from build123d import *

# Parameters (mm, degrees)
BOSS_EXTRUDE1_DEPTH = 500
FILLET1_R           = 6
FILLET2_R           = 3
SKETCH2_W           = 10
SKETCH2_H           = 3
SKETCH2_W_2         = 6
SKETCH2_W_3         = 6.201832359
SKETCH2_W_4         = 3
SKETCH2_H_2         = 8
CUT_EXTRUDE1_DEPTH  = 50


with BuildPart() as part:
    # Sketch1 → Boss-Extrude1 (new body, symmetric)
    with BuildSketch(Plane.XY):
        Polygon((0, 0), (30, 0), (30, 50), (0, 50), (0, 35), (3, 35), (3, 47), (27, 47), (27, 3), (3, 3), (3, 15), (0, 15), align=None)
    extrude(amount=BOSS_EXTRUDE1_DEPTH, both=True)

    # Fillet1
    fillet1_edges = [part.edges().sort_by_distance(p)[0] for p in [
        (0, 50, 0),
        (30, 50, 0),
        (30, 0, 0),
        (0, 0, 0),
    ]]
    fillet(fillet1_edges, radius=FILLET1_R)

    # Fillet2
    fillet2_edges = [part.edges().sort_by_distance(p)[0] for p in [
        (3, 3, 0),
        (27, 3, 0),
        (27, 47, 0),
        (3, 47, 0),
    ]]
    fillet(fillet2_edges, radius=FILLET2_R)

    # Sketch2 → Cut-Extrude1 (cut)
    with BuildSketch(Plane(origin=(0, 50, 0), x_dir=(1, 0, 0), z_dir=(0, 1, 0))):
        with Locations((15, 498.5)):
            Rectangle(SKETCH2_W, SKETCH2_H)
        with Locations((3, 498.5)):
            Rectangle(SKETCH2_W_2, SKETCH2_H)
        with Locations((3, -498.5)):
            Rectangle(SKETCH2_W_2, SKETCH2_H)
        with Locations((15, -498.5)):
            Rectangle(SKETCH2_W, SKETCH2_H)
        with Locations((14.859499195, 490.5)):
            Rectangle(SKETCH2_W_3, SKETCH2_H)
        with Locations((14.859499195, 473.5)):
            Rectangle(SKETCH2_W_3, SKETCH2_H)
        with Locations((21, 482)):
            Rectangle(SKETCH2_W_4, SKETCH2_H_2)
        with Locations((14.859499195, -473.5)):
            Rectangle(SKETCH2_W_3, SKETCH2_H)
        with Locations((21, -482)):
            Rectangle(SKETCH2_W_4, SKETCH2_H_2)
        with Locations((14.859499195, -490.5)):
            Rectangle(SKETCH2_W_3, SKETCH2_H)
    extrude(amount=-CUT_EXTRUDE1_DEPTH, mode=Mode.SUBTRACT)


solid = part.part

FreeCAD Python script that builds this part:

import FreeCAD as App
import Part
import Sketcher
Q = App.Units.Quantity


def edges_at(feature, points):
    """Names of the edges that pass closest to the given points."""
    edges = feature.Shape.Edges
    near = lambda p: min(range(len(edges)), key=lambda i: edges[i].distToShape(Part.Vertex(*p))[0])
    return sorted({f"Edge{near(p) + 1}" for p in points})

doc = App.newDocument("Part")
body = doc.addObject("PartDesign::Body", "Body")

# Sketch on XY plane
sketch1 = body.newObject("Sketcher::SketchObject", "Sketch")
sketch1.AttachmentSupport = (doc.getObject("XY_Plane"), [""])
sketch1.MapMode = "FlatFace"
sketch1.addGeometry([
    Part.LineSegment(App.Vector(0, 0, 0), App.Vector(30, 0, 0)),  # 0
    Part.LineSegment(App.Vector(30, 0, 0), App.Vector(30, 50, 0)),  # 1
    Part.LineSegment(App.Vector(30, 50, 0), App.Vector(0, 50, 0)),  # 2
    Part.LineSegment(App.Vector(0, 50, 0), App.Vector(0, 35, 0)),  # 3
    Part.LineSegment(App.Vector(0, 35, 0), App.Vector(3, 35, 0)),  # 4
    Part.LineSegment(App.Vector(3, 35, 0), App.Vector(3, 47, 0)),  # 5
    Part.LineSegment(App.Vector(3, 47, 0), App.Vector(27, 47, 0)),  # 6
    Part.LineSegment(App.Vector(27, 47, 0), App.Vector(27, 3, 0)),  # 7
    Part.LineSegment(App.Vector(27, 3, 0), App.Vector(3, 3, 0)),  # 8
    Part.LineSegment(App.Vector(3, 3, 0), App.Vector(3, 15, 0)),  # 9
    Part.LineSegment(App.Vector(3, 15, 0), App.Vector(0, 15, 0)),  # 10
    Part.LineSegment(App.Vector(0, 15, 0), App.Vector(0, 0, 0)),  # 11
], False)
sketch1.addConstraint([
    Sketcher.Constraint("Coincident", 0, 2, 1, 1),
    Sketcher.Constraint("Coincident", 1, 2, 2, 1),
    Sketcher.Constraint("Coincident", 2, 2, 3, 1),
    Sketcher.Constraint("Coincident", 3, 2, 4, 1),
    Sketcher.Constraint("Coincident", 4, 2, 5, 1),
    Sketcher.Constraint("Coincident", 5, 2, 6, 1),
    Sketcher.Constraint("Coincident", 6, 2, 7, 1),
    Sketcher.Constraint("Coincident", 7, 2, 8, 1),
    Sketcher.Constraint("Coincident", 8, 2, 9, 1),
    Sketcher.Constraint("Coincident", 9, 2, 10, 1),
    Sketcher.Constraint("Coincident", 10, 2, 11, 1),
    Sketcher.Constraint("Coincident", 11, 2, 0, 1),
    Sketcher.Constraint("Horizontal", 0),
    Sketcher.Constraint("Vertical", 1),
    Sketcher.Constraint("Horizontal", 2),
    Sketcher.Constraint("Vertical", 3),
    Sketcher.Constraint("Horizontal", 4),
    Sketcher.Constraint("Vertical", 5),
    Sketcher.Constraint("Horizontal", 6),
    Sketcher.Constraint("Vertical", 7),
    Sketcher.Constraint("Horizontal", 8),
    Sketcher.Constraint("Vertical", 9),
    Sketcher.Constraint("Horizontal", 10),
    Sketcher.Constraint("Vertical", 11),
    Sketcher.Constraint("Coincident", 11, 2, -1, 1),
    Sketcher.Constraint("PointOnObject", 2, 2, -2),
    Sketcher.Constraint("Vertical", 5, 2, 8, 2),
    Sketcher.Constraint("Equal", 5, 9),
    Sketcher.Constraint("Equal", 3, 11),
    Sketcher.Constraint("DistanceX", 0, 1, 0, 2, Q("30 mm")),
    Sketcher.Constraint("DistanceX", 4, 1, 4, 2, Q("3 mm")),
    Sketcher.Constraint("DistanceX", 6, 1, 6, 2, Q("24 mm")),
    Sketcher.Constraint("DistanceY", 1, 1, 1, 2, Q("50 mm")),
    Sketcher.Constraint("DistanceY", 3, 2, 3, 1, Q("15 mm")),
    Sketcher.Constraint("DistanceY", 5, 1, 5, 2, Q("12 mm")),
])
pad1 = body.newObject("PartDesign::Pad", "Pad")
pad1.Profile = sketch1
pad1.Length = 1000
pad1.Midplane = True
doc.recompute()

fillet = body.newObject("PartDesign::Fillet", "Fillet")
fillet.Base = (pad1, edges_at(pad1, [
    (0, 50, 0),
    (30, 50, 0),
    (30, 0, 0),
    (0, 0, 0),
]))
fillet.Radius = 6
doc.recompute()

fillet2 = body.newObject("PartDesign::Fillet", "Fillet001")
fillet2.Base = (fillet, edges_at(fillet, [
    (3, 3, 0),
    (27, 3, 0),
    (27, 47, 0),
    (3, 47, 0),
]))
fillet2.Radius = 3

# Sketch on XZ plane
sketch2 = body.newObject("Sketcher::SketchObject", "Sketch001")
sketch2.AttachmentSupport = (doc.getObject("XZ_Plane"), [""])
sketch2.MapMode = "FlatFace"
sketch2.AttachmentOffset = App.Placement(App.Vector(0, 0, -50), App.Rotation())
sketch2.addGeometry([
    Part.LineSegment(App.Vector(10, -500, 0), App.Vector(10, -497, 0)),  # 0
    Part.LineSegment(App.Vector(10, -497, 0), App.Vector(20, -497, 0)),  # 1
    Part.LineSegment(App.Vector(20, -497, 0), App.Vector(20, -500, 0)),  # 2
    Part.LineSegment(App.Vector(20, -500, 0), App.Vector(10, -500, 0)),  # 3
    Part.LineSegment(App.Vector(0, -500, 0), App.Vector(0, -497, 0)),  # 4
    Part.LineSegment(App.Vector(0, -497, 0), App.Vector(6, -497, 0)),  # 5
    Part.LineSegment(App.Vector(6, -497, 0), App.Vector(6, -500, 0)),  # 6
    Part.LineSegment(App.Vector(6, -500, 0), App.Vector(0, -500, 0)),  # 7
    Part.LineSegment(App.Vector(0, 497, 0), App.Vector(0, 500, 0)),  # 8
    Part.LineSegment(App.Vector(0, 500, 0), App.Vector(6, 500, 0)),  # 9
    Part.LineSegment(App.Vector(6, 500, 0), App.Vector(6, 497, 0)),  # 10
    Part.LineSegment(App.Vector(6, 497, 0), App.Vector(0, 497, 0)),  # 11
    Part.LineSegment(App.Vector(10, 497, 0), App.Vector(10, 500, 0)),  # 12
    Part.LineSegment(App.Vector(10, 500, 0), App.Vector(20, 500, 0)),  # 13
    Part.LineSegment(App.Vector(20, 500, 0), App.Vector(20, 497, 0)),  # 14
    Part.LineSegment(App.Vector(20, 497, 0), App.Vector(10, 497, 0)),  # 15
    Part.LineSegment(App.Vector(11.8, -492, 0), App.Vector(11.8, -489, 0)),  # 16
    Part.LineSegment(App.Vector(11.8, -489, 0), App.Vector(18, -489, 0)),  # 17
    Part.LineSegment(App.Vector(18, -489, 0), App.Vector(18, -492, 0)),  # 18
    Part.LineSegment(App.Vector(18, -492, 0), App.Vector(11.8, -492, 0)),  # 19
    Part.LineSegment(App.Vector(11.8, -475, 0), App.Vector(11.8, -472, 0)),  # 20
    Part.LineSegment(App.Vector(11.8, -472, 0), App.Vector(18, -472, 0)),  # 21
    Part.LineSegment(App.Vector(18, -472, 0), App.Vector(18, -475, 0)),  # 22
    Part.LineSegment(App.Vector(18, -475, 0), App.Vector(11.8, -475, 0)),  # 23
    Part.LineSegment(App.Vector(19.5, -486, 0), App.Vector(19.5, -478, 0)),  # 24
    Part.LineSegment(App.Vector(19.5, -478, 0), App.Vector(22.5, -478, 0)),  # 25
    Part.LineSegment(App.Vector(22.5, -478, 0), App.Vector(22.5, -486, 0)),  # 26
    Part.LineSegment(App.Vector(22.5, -486, 0), App.Vector(19.5, -486, 0)),  # 27
    Part.LineSegment(App.Vector(11.8, 472, 0), App.Vector(11.8, 475, 0)),  # 28
    Part.LineSegment(App.Vector(11.8, 475, 0), App.Vector(18, 475, 0)),  # 29
    Part.LineSegment(App.Vector(18, 475, 0), App.Vector(18, 472, 0)),  # 30
    Part.LineSegment(App.Vector(18, 472, 0), App.Vector(11.8, 472, 0)),  # 31
    Part.LineSegment(App.Vector(19.5, 478, 0), App.Vector(19.5, 486, 0)),  # 32
    Part.LineSegment(App.Vector(19.5, 486, 0), App.Vector(22.5, 486, 0)),  # 33
    Part.LineSegment(App.Vector(22.5, 486, 0), App.Vector(22.5, 478, 0)),  # 34
    Part.LineSegment(App.Vector(22.5, 478, 0), App.Vector(19.5, 478, 0)),  # 35
    Part.LineSegment(App.Vector(11.8, 489, 0), App.Vector(11.8, 492, 0)),  # 36
    Part.LineSegment(App.Vector(11.8, 492, 0), App.Vector(18, 492, 0)),  # 37
    Part.LineSegment(App.Vector(18, 492, 0), App.Vector(18, 489, 0)),  # 38
    Part.LineSegment(App.Vector(18, 489, 0), App.Vector(11.8, 489, 0)),  # 39
], False)
sketch2.addConstraint([
    Sketcher.Constraint("Coincident", 0, 2, 1, 1),
    Sketcher.Constraint("Coincident", 1, 2, 2, 1),
    Sketcher.Constraint("Coincident", 2, 2, 3, 1),
    Sketcher.Constraint("Coincident", 3, 2, 0, 1),
    Sketcher.Constraint("Coincident", 4, 2, 5, 1),
    Sketcher.Constraint("Coincident", 5, 2, 6, 1),
    Sketcher.Constraint("Coincident", 6, 2, 7, 1),
    Sketcher.Constraint("Coincident", 7, 2, 4, 1),
    Sketcher.Constraint("Coincident", 8, 2, 9, 1),
    Sketcher.Constraint("Coincident", 9, 2, 10, 1),
    Sketcher.Constraint("Coincident", 10, 2, 11, 1),
    Sketcher.Constraint("Coincident", 11, 2, 8, 1),
    Sketcher.Constraint("Coincident", 12, 2, 13, 1),
    Sketcher.Constraint("Coincident", 13, 2, 14, 1),
    Sketcher.Constraint("Coincident", 14, 2, 15, 1),
    Sketcher.Constraint("Coincident", 15, 2, 12, 1),
    Sketcher.Constraint("Coincident", 16, 2, 17, 1),
    Sketcher.Constraint("Coincident", 17, 2, 18, 1),
    Sketcher.Constraint("Coincident", 18, 2, 19, 1),
    Sketcher.Constraint("Coincident", 19, 2, 16, 1),
    Sketcher.Constraint("Coincident", 20, 2, 21, 1),
    Sketcher.Constraint("Coincident", 21, 2, 22, 1),
    Sketcher.Constraint("Coincident", 22, 2, 23, 1),
    Sketcher.Constraint("Coincident", 23, 2, 20, 1),
    Sketcher.Constraint("Coincident", 24, 2, 25, 1),
    Sketcher.Constraint("Coincident", 25, 2, 26, 1),
    Sketcher.Constraint("Coincident", 26, 2, 27, 1),
    Sketcher.Constraint("Coincident", 27, 2, 24, 1),
    Sketcher.Constraint("Coincident", 28, 2, 29, 1),
    Sketcher.Constraint("Coincident", 29, 2, 30, 1),
    Sketcher.Constraint("Coincident", 30, 2, 31, 1),
    Sketcher.Constraint("Coincident", 31, 2, 28, 1),
    Sketcher.Constraint("Coincident", 32, 2, 33, 1),
    Sketcher.Constraint("Coincident", 33, 2, 34, 1),
    Sketcher.Constraint("Coincident", 34, 2, 35, 1),
    Sketcher.Constraint("Coincident", 35, 2, 32, 1),
    Sketcher.Constraint("Coincident", 36, 2, 37, 1),
    Sketcher.Constraint("Coincident", 37, 2, 38, 1),
    Sketcher.Constraint("Coincident", 38, 2, 39, 1),
    Sketcher.Constraint("Coincident", 39, 2, 36, 1),
    Sketcher.Constraint("Vertical", 0),
    Sketcher.Constraint("Horizontal", 1),
    Sketcher.Constraint("Vertical", 2),
    Sketcher.Constraint("Horizontal", 3),
    Sketcher.Constraint("Vertical", 4),
    Sketcher.Constraint("Horizontal", 5),
    Sketcher.Constraint("Vertical", 6),
    Sketcher.Constraint("Horizontal", 7),
    Sketcher.Constraint("Vertical", 8),
    Sketcher.Constraint("Horizontal", 9),
    Sketcher.Constraint("Vertical", 10),
    Sketcher.Constraint("Horizontal", 11),
    Sketcher.Constraint("Vertical", 12),
    Sketcher.Constraint("Horizontal", 13),
    Sketcher.Constraint("Vertical", 14),
    Sketcher.Constraint("Horizontal", 15),
    Sketcher.Constraint("Vertical", 16),
    Sketcher.Constraint("Horizontal", 17),
    Sketcher.Constraint("Vertical", 18),
    Sketcher.Constraint("Horizontal", 19),
    Sketcher.Constraint("Vertical", 20),
    Sketcher.Constraint("Horizontal", 21),
    Sketcher.Constraint("Vertical", 22),
    Sketcher.Constraint("Horizontal", 23),
    Sketcher.Constraint("Vertical", 24),
    Sketcher.Constraint("Horizontal", 25),
    Sketcher.Constraint("Vertical", 26),
    Sketcher.Constraint("Horizontal", 27),
    Sketcher.Constraint("Vertical", 28),
    Sketcher.Constraint("Horizontal", 29),
    Sketcher.Constraint("Vertical", 30),
    Sketcher.Constraint("Horizontal", 31),
    Sketcher.Constraint("Vertical", 32),
    Sketcher.Constraint("Horizontal", 33),
    Sketcher.Constraint("Vertical", 34),
    Sketcher.Constraint("Horizontal", 35),
    Sketcher.Constraint("Vertical", 36),
    Sketcher.Constraint("Horizontal", 37),
    Sketcher.Constraint("Vertical", 38),
    Sketcher.Constraint("Horizontal", 39),
    Sketcher.Constraint("Symmetric", 7, 2, 8, 2, -1, 1),
    Sketcher.Constraint("Symmetric", 5, 2, 10, 2, -1),
    Sketcher.Constraint("Symmetric", 3, 2, 12, 2, -1),
    Sketcher.Constraint("Symmetric", 1, 2, 14, 2, -1),
    Sketcher.Constraint("Symmetric", 23, 2, 28, 2, -1),
    Sketcher.Constraint("Symmetric", 21, 2, 30, 2, -1),
    Sketcher.Constraint("Symmetric", 27, 2, 32, 2, -1),
    Sketcher.Constraint("Symmetric", 25, 2, 34, 2, -1),
    Sketcher.Constraint("Symmetric", 19, 2, 36, 2, -1),
    Sketcher.Constraint("Symmetric", 17, 2, 38, 2, -1),
    Sketcher.Constraint("PointOnObject", 4, 2, -2),
    Sketcher.Constraint("Horizontal", 1, 2, 4, 2),
    Sketcher.Constraint("Horizontal", 3, 2, 6, 2),
    Sketcher.Constraint("Vertical", 19, 2, 20, 2),
    Sketcher.Constraint("Vertical", 18, 2, 21, 2),
    Sketcher.Constraint("Equal", 35, 0),
    Sketcher.Constraint("Equal", 14, 16),
    Sketcher.Constraint("Equal", 18, 20),
    Sketcher.Constraint("DistanceX", 1, 1, 1, 2, Q("10 mm")),
    Sketcher.Constraint("DistanceX", 5, 1, 5, 2, Q("6 mm")),
    Sketcher.Constraint("DistanceX", 25, 1, 25, 2, Q("3 mm")),
    Sketcher.Constraint("DistanceY", 24, 1, 24, 2, Q("8 mm")),
    Sketcher.Constraint("DistanceX", -1, 1, 0, 2, Q("10 mm")),
    Sketcher.Constraint("DistanceY", 0, 2, -1, 1, Q("497 mm")),
    Sketcher.Constraint("DistanceY", 16, 2, -1, 1, Q("489 mm")),
    Sketcher.Constraint("DistanceY", 20, 2, -1, 1, Q("472 mm")),
    Sketcher.Constraint("DistanceY", 24, 2, -1, 1, Q("478 mm")),
    Sketcher.Constraint("DistanceX", -1, 1, 24, 2, Q("19.5 mm")),
    Sketcher.Constraint("DistanceX", 17, 1, 17, 2, Q("6.201832 mm")),
    Sketcher.Constraint("DistanceX", -1, 1, 16, 2, Q("11.758583 mm")),
])
pocket1 = body.newObject("PartDesign::Pocket", "Pocket")
pocket1.Profile = sketch2
pocket1.Length = 50
pocket1.Reversed = True

doc.recompute()
